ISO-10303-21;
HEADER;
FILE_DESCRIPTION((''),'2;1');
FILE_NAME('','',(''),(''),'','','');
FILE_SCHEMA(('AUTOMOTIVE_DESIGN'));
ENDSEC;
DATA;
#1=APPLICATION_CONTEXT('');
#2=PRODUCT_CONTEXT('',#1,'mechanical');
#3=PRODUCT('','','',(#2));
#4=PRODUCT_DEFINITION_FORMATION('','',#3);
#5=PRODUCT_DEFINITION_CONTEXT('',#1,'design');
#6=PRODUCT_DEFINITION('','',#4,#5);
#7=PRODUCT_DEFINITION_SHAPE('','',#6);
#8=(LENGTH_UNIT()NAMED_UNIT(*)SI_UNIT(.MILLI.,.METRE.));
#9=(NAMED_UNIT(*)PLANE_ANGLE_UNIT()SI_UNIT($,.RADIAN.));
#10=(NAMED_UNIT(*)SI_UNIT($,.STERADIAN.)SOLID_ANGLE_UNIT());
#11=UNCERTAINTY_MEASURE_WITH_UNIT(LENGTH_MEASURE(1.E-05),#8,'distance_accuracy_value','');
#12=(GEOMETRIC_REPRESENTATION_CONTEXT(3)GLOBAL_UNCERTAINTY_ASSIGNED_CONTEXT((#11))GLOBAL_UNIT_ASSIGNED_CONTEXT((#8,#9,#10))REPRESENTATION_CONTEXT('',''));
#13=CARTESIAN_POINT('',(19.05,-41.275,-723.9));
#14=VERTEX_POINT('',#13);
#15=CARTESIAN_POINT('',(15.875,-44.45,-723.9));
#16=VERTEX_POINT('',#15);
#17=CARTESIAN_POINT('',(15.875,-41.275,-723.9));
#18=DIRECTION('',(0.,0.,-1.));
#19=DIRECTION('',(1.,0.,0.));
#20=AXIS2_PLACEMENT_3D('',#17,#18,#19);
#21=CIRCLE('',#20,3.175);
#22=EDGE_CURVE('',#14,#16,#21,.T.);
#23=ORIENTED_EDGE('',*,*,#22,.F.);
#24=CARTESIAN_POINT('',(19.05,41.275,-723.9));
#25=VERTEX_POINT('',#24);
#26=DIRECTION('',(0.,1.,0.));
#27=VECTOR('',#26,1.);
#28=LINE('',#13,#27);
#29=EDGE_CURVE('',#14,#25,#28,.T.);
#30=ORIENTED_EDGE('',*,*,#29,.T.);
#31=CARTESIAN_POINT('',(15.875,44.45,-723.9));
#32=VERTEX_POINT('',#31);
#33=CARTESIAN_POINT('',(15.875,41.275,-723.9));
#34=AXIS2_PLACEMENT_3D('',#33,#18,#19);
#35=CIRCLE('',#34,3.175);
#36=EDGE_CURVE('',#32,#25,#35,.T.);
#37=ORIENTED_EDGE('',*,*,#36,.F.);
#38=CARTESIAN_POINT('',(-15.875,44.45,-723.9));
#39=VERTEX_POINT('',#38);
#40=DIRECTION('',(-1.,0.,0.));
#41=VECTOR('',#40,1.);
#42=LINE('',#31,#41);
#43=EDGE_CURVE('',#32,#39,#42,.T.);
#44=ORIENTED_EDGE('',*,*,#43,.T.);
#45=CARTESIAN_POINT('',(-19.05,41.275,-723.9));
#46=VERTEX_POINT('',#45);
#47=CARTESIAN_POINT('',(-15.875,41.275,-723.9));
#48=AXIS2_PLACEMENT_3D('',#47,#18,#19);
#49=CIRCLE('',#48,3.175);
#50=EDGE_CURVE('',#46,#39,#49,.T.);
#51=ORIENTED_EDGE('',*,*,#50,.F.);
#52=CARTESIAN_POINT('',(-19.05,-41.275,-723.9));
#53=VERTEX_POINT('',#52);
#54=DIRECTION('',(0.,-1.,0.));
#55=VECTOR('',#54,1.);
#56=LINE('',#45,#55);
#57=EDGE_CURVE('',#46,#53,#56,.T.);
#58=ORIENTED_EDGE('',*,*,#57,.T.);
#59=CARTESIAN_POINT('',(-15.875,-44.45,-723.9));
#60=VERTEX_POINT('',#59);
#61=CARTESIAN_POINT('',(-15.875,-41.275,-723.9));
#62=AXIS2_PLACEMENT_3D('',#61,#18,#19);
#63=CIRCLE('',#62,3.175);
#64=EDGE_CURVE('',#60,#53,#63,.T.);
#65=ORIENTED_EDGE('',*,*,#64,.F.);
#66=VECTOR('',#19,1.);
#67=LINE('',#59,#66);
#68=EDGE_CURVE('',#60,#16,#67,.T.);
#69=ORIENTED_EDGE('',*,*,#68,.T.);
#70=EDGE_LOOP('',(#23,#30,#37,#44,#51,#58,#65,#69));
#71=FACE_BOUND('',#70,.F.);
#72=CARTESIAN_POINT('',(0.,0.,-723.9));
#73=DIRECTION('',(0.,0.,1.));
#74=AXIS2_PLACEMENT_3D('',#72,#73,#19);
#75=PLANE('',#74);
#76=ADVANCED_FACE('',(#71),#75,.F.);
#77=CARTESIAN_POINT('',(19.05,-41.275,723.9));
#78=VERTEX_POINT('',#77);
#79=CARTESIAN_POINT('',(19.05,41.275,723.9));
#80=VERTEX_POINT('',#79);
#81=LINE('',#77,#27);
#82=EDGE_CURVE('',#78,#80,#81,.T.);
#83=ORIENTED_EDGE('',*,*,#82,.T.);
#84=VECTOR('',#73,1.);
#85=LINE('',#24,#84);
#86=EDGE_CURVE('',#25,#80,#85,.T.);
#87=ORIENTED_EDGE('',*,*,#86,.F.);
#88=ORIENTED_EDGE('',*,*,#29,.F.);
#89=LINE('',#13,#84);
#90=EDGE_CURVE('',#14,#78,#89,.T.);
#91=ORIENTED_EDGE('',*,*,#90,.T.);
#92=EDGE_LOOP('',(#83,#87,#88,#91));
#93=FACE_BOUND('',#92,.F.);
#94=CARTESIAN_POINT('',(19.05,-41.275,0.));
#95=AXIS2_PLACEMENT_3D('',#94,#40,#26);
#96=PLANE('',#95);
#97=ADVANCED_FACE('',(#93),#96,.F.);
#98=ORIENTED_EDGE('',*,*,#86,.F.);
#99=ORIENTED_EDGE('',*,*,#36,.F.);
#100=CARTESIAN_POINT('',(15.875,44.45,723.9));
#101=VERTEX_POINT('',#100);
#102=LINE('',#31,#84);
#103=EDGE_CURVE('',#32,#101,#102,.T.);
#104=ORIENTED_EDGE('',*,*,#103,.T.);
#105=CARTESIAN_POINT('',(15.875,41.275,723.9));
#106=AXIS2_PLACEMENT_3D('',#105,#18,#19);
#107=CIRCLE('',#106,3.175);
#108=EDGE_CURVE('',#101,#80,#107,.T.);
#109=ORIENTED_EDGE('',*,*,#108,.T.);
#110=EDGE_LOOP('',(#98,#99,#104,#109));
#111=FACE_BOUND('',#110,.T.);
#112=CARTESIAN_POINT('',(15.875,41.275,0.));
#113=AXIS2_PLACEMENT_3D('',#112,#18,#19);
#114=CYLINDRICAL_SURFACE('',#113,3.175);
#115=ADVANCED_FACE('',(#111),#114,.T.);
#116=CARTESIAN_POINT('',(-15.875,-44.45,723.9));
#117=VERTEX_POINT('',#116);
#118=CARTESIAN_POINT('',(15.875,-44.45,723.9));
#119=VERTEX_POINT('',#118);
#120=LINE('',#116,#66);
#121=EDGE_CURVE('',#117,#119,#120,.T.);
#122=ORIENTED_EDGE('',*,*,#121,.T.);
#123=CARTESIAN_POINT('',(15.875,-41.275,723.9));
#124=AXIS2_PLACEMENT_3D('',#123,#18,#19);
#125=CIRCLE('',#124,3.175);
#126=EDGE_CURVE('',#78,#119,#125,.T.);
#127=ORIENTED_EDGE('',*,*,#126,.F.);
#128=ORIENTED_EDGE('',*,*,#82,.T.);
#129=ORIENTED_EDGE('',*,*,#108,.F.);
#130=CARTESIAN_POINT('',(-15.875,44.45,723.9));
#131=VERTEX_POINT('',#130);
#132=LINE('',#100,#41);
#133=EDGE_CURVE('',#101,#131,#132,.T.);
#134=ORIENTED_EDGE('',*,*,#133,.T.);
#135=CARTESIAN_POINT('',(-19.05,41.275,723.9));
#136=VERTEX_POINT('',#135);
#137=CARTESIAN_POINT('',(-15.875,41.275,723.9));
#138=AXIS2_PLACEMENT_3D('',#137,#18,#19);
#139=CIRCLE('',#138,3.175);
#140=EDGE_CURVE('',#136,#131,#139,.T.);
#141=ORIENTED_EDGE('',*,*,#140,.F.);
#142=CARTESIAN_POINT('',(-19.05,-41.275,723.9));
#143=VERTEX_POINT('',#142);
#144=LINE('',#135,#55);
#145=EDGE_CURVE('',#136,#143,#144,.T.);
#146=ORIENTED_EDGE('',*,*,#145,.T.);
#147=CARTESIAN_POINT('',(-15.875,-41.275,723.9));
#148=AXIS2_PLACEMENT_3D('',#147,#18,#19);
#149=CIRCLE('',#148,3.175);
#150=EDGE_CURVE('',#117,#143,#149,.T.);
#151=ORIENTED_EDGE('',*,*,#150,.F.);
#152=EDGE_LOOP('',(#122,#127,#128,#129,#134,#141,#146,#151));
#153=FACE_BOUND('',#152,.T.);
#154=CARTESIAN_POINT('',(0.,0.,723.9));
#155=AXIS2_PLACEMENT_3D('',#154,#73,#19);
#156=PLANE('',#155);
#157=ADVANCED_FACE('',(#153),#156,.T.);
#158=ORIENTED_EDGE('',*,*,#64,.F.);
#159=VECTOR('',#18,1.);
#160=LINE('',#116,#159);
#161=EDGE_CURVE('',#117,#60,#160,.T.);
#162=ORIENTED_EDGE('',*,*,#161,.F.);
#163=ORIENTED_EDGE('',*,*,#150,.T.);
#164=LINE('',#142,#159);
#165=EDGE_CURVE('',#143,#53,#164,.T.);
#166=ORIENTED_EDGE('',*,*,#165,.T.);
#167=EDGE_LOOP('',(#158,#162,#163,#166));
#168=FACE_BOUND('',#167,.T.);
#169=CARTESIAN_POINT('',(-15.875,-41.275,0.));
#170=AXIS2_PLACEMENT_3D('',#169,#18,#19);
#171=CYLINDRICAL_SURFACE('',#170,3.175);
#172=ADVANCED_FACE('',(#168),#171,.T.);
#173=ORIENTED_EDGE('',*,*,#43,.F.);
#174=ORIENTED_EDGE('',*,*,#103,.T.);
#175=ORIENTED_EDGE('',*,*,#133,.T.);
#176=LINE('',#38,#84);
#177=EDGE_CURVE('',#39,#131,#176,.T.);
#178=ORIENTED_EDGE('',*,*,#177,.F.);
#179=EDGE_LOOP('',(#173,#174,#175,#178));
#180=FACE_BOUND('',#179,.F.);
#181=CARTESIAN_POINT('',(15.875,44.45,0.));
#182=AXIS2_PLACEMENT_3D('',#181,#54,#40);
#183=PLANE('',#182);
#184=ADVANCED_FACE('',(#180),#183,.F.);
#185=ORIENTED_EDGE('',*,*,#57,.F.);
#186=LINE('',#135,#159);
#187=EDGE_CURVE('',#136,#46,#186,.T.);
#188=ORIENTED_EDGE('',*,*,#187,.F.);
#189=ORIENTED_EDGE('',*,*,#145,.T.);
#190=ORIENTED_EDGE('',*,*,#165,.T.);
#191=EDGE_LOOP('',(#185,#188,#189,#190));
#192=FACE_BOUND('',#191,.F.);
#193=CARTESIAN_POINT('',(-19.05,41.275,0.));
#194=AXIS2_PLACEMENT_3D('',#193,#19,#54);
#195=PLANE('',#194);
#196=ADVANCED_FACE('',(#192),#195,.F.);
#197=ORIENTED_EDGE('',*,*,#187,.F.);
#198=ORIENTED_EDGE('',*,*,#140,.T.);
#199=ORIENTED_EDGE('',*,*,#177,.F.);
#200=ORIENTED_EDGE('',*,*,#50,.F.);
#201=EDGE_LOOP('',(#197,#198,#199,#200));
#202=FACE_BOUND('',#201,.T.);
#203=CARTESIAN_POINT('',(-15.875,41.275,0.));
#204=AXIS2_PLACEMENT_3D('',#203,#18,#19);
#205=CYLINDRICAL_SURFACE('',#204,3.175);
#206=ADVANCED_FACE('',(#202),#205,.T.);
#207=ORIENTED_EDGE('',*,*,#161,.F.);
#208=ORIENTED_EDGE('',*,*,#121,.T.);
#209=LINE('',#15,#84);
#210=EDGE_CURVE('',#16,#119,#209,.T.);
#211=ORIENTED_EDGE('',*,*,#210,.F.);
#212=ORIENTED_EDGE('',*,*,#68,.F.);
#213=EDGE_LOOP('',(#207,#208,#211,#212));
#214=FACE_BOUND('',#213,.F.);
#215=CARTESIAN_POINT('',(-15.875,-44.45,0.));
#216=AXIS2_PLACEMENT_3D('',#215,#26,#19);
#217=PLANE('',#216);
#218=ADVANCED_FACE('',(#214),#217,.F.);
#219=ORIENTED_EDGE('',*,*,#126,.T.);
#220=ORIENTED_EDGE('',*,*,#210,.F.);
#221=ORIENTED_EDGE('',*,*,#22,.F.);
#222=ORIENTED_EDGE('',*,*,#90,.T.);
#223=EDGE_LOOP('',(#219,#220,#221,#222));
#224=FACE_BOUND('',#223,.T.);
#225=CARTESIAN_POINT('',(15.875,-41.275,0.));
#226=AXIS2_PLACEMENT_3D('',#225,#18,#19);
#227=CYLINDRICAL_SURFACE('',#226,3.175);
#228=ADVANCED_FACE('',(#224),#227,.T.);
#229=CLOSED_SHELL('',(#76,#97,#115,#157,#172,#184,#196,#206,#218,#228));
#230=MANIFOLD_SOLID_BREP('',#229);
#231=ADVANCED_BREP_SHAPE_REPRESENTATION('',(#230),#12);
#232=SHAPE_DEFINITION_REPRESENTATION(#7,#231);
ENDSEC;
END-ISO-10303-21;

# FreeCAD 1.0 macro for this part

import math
import FreeCAD as App
import Part
import Sketcher
from FreeCAD import Vector
Q = App.Units.Quantity

doc = App.newDocument("Part")
body = doc.addObject("PartDesign::Body", "Body")

# Sketch on XY plane
sketch1 = body.newObject("Sketcher::SketchObject", "Sketch")
sketch1.AttachmentSupport = (doc.getObject("XY_Plane"), [""])
sketch1.MapMode = "FlatFace"
sketch1.addGeometry([
    Part.ArcOfCircle(Part.Circle(Vector(-15.9, -41.3, 0), Vector(0, 0, 1), 3.2), math.radians(180), math.radians(270)),  # 0
    Part.LineSegment(Vector(-15.9, -44.5, 0), Vector(15.9, -44.5, 0)),  # 1
    Part.ArcOfCircle(Part.Circle(Vector(15.9, -41.3, 0), Vector(0, 0, 1), 3.2), math.radians(-90), math.radians(0)),  # 2
    Part.LineSegment(Vector(19.1, -41.3, 0), Vector(19.1, 41.3, 0)),  # 3
    Part.ArcOfCircle(Part.Circle(Vector(15.9, 41.3, 0), Vector(0, 0, 1), 3.2), math.radians(0), math.radians(90)),  # 4
    Part.LineSegment(Vector(15.9, 44.5, 0), Vector(-15.9, 44.5, 0)),  # 5
    Part.ArcOfCircle(Part.Circle(Vector(-15.9, 41.3, 0), Vector(0, 0, 1), 3.2), math.radians(90), math.radians(180)),  # 6
    Part.LineSegment(Vector(-19.1, 41.3, 0), Vector(-19.1, -41.3, 0)),  # 7
], False)
sketch1.addConstraint([
    Sketcher.Constraint("Tangent", 0, 2, 1, 1),
    Sketcher.Constraint("Tangent", 1, 2, 2, 1),
    Sketcher.Constraint("Tangent", 2, 2, 3, 1),
    Sketcher.Constraint("Tangent", 3, 2, 4, 1),
    Sketcher.Constraint("Tangent", 4, 2, 5, 1),
    Sketcher.Constraint("Tangent", 5, 2, 6, 1),
    Sketcher.Constraint("Tangent", 6, 2, 7, 1),
    Sketcher.Constraint("Tangent", 7, 2, 0, 1),
    Sketcher.Constraint("Horizontal", 1),
    Sketcher.Constraint("Vertical", 3),
    Sketcher.Constraint("Horizontal", 5),
    Sketcher.Constraint("Vertical", 7),
    Sketcher.Constraint("Equal", 0, 2),
    Sketcher.Constraint("Equal", 2, 4),
    Sketcher.Constraint("Equal", 4, 6),
    Sketcher.Constraint("Symmetric", 0, 3, 4, 3, -1, 1),
    Sketcher.Constraint("DistanceX", -1, 1, 2, 2, Q("0.75 in")),
    Sketcher.Constraint("DistanceX", 0, 3, -1, 1, Q("0.625 in")),
    Sketcher.Constraint("DistanceY", 3, 1, 3, 2, Q("3.25 in")),
])
pad1 = body.newObject("PartDesign::Pad", "Pad")
pad1.Profile = sketch1
pad1.Length = Q("57 in")
pad1.Midplane = True

doc.recompute()
